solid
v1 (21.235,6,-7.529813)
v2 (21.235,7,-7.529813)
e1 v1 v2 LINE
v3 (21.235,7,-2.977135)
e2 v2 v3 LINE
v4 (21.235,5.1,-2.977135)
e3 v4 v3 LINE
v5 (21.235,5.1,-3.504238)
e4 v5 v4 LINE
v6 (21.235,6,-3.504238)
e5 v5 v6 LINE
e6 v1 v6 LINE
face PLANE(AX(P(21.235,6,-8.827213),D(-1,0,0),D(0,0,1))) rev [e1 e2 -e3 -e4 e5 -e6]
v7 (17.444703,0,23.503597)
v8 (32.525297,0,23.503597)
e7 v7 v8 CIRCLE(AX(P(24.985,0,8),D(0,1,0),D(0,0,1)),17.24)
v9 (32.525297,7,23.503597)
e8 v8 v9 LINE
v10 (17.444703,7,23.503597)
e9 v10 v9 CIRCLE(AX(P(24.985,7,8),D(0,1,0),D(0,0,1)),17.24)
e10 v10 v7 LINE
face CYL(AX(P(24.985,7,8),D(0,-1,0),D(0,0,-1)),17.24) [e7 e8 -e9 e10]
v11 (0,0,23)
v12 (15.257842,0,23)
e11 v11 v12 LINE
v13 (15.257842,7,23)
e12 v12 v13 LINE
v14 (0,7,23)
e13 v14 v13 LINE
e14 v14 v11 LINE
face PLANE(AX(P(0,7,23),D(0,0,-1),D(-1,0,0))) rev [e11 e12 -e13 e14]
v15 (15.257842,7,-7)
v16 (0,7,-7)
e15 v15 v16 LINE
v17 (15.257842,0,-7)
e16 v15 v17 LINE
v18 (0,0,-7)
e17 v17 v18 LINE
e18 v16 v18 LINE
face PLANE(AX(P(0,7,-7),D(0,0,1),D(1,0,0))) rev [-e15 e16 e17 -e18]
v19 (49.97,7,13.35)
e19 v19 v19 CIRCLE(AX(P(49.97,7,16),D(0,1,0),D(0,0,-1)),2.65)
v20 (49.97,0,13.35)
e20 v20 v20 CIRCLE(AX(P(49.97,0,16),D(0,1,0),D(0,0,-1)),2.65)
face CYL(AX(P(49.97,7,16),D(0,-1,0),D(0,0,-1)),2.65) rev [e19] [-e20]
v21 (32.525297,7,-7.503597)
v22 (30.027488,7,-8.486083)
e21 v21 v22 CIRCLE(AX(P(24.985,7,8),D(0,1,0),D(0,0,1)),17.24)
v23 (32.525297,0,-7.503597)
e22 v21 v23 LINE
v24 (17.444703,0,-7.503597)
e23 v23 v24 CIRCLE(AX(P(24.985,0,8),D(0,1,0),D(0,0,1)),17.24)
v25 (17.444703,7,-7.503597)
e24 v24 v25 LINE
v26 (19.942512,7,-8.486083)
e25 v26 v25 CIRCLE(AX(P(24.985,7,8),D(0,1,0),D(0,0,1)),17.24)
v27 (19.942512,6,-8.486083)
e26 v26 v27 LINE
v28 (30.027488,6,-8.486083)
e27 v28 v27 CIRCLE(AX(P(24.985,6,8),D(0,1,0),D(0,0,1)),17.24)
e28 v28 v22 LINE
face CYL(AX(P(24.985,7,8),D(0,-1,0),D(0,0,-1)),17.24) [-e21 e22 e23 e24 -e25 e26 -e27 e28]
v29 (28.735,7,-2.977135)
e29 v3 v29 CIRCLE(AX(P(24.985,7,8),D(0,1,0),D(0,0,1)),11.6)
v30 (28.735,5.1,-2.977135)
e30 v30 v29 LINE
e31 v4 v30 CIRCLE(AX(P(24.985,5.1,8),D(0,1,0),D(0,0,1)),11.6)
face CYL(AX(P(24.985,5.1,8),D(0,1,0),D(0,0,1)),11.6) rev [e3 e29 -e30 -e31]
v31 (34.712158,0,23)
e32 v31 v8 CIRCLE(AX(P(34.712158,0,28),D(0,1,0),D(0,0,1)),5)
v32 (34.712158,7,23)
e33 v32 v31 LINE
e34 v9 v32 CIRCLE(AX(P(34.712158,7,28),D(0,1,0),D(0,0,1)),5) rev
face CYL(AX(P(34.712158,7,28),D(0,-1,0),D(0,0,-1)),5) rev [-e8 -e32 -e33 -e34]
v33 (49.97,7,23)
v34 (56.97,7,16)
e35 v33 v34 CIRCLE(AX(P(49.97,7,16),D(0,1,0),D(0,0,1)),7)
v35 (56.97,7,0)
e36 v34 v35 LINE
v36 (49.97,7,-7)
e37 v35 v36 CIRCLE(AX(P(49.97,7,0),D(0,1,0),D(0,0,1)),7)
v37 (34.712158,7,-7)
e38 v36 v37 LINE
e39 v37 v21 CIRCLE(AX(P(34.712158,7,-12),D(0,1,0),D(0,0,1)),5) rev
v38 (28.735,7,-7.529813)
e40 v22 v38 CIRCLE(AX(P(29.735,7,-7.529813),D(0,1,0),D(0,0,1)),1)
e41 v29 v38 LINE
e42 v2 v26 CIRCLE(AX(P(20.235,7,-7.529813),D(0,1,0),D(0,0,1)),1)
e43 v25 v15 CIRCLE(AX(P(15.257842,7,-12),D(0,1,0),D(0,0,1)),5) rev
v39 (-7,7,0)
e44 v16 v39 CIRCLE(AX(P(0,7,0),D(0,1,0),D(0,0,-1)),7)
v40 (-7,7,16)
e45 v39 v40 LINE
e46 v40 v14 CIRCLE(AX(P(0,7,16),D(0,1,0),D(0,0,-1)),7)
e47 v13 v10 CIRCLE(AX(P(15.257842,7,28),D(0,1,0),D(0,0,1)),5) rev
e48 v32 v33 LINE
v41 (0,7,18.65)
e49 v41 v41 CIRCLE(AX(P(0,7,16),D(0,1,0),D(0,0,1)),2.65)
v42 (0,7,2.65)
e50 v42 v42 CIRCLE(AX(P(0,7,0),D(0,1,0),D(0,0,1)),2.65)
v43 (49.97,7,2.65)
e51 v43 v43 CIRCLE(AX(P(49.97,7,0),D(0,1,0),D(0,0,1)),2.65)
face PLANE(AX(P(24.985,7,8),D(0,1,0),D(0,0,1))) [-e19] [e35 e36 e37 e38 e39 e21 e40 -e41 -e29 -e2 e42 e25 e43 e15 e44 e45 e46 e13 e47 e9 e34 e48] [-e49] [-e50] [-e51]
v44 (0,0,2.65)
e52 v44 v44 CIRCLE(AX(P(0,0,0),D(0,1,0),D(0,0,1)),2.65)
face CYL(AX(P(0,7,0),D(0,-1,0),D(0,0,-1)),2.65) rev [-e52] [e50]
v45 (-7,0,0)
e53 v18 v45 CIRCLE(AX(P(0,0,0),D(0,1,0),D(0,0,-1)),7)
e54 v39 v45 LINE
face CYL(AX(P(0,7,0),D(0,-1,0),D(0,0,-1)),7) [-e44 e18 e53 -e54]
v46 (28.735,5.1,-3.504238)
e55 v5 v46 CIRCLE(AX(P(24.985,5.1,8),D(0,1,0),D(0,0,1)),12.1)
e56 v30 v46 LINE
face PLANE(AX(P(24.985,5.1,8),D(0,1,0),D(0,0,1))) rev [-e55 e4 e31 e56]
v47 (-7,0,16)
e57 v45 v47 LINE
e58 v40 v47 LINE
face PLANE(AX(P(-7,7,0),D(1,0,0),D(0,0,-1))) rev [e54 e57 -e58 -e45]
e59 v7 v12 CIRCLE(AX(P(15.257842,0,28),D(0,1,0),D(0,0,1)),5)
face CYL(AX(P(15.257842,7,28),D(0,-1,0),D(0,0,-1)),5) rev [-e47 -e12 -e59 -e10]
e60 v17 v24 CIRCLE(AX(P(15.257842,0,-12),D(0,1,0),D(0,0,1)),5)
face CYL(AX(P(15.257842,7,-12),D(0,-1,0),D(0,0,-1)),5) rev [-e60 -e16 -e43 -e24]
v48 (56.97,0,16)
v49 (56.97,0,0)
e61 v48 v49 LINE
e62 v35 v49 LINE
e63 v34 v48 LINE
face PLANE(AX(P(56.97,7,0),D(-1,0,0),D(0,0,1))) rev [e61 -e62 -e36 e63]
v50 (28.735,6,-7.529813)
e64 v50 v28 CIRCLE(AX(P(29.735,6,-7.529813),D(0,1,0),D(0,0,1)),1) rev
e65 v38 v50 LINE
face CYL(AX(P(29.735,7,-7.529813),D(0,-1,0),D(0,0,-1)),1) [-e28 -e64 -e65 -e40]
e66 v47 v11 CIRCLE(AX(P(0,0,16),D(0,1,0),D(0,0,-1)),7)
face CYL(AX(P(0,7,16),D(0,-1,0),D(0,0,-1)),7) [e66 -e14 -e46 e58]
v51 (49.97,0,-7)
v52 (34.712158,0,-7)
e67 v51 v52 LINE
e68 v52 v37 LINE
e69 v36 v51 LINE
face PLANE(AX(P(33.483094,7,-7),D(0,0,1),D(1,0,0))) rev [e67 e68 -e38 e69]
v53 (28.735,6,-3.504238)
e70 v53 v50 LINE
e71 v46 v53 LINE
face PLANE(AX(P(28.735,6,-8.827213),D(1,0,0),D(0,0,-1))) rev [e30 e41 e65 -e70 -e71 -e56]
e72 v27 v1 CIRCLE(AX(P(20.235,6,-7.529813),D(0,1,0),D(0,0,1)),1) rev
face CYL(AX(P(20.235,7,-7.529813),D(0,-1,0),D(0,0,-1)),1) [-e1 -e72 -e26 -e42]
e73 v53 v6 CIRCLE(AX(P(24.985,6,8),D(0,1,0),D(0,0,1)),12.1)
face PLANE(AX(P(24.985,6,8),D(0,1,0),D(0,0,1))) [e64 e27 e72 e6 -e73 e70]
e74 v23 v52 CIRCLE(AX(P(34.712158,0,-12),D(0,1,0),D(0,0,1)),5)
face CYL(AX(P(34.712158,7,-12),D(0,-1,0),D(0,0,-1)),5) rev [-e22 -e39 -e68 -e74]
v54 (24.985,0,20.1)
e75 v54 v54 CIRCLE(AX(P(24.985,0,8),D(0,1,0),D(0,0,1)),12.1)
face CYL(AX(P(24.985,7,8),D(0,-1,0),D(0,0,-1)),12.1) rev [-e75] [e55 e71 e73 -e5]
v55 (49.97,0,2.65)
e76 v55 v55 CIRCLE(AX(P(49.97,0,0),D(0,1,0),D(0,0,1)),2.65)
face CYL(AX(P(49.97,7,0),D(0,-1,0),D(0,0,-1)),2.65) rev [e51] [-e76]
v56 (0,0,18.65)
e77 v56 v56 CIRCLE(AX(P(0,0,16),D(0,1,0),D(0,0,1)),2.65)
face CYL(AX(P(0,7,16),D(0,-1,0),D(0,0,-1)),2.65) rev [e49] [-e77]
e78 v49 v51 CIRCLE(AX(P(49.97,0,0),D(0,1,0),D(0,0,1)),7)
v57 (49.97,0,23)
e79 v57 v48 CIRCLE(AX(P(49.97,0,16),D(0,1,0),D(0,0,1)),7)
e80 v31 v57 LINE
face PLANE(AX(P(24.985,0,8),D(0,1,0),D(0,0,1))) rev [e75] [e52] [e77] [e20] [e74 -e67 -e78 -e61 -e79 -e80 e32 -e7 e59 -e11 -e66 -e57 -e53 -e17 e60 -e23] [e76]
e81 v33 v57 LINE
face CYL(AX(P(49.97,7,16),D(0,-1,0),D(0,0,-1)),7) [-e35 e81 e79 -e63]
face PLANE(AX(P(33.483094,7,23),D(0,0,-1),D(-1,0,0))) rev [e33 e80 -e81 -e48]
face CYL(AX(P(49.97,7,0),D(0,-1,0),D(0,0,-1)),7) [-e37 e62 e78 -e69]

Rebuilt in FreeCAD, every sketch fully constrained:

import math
import FreeCAD as App
import Part
import Sketcher

V = App.Vector


def edges_at(feature, points):
    """Names of the edges that pass closest to the given points."""
    edges = feature.Shape.Edges
    near = lambda p: min(range(len(edges)), key=lambda i: edges[i].distToShape(Part.Vertex(*p))[0])
    return sorted({f"Edge{near(p) + 1}" for p in points})

doc = App.newDocument("Part")
body = doc.addObject("PartDesign::Body", "Body")

# Sketch on XZ plane
sketch1 = body.newObject("Sketcher::SketchObject", "Sketch")
sketch1.AttachmentSupport = (doc.getObject("XZ_Plane"), [""])
sketch1.MapMode = "FlatFace"
sketch1.addGeometry([
    Part.LineSegment(V(33.483094, 23, 0), V(49.97, 23, 0)),  # 0
    Part.ArcOfCircle(Part.Circle(V(49.97, 16, 0), V(0, 0, 1), 7), math.radians(0), math.radians(90)),  # 1
    Part.LineSegment(V(56.97, 16, 0), V(56.97, 0, 0)),  # 2
    Part.ArcOfCircle(Part.Circle(V(49.97, 0, 0), V(0, 0, 1), 7), math.radians(-90), math.radians(0)),  # 3
    Part.LineSegment(V(49.97, -7, 0), V(33.483094, -7, 0)),  # 4
    Part.ArcOfCircle(Part.Circle(V(24.985, 8, 0), V(0, 0, 1), 17.24), math.radians(-119.533271), math.radians(-60.466729)),  # 5
    Part.LineSegment(V(16.486906, -7, 0), V(0, -7, 0)),  # 6
    Part.ArcOfCircle(Part.Circle(V(0, 0, 0), V(0, 0, 1), 7), math.radians(-180), math.radians(-90)),  # 7
    Part.LineSegment(V(-7, 0, 0), V(-7, 16, 0)),  # 8
    Part.ArcOfCircle(Part.Circle(V(0, 16, 0), V(0, 0, 1), 7), math.radians(90), math.radians(180)),  # 9
    Part.LineSegment(V(0, 23, 0), V(16.486906, 23, 0)),  # 10
    Part.ArcOfCircle(Part.Circle(V(24.985, 8, 0), V(0, 0, 1), 17.24), math.radians(60.466729), math.radians(119.533271)),  # 11
    Part.Circle(V(0, 16, 0), V(0, 0, 1), 2.65),  # 12
    Part.Circle(V(49.97, 16, 0), V(0, 0, 1), 2.65),  # 13
    Part.Circle(V(0, 0, 0), V(0, 0, 1), 2.65),  # 14
    Part.Circle(V(24.985, 8, 0), V(0, 0, 1), 12.1),  # 15
    Part.Circle(V(49.97, 0, 0), V(0, 0, 1), 2.65),  # 16
], False)
sketch1.addConstraint([
    Sketcher.Constraint("Tangent", 0, 2, 1, 2),
    Sketcher.Constraint("Tangent", 1, 1, 2, 1),
    Sketcher.Constraint("Tangent", 2, 2, 3, 2),
    Sketcher.Constraint("Tangent", 3, 1, 4, 1),
    Sketcher.Constraint("Coincident", 4, 2, 5, 2),
    Sketcher.Constraint("Coincident", 5, 1, 6, 1),
    Sketcher.Constraint("Tangent", 6, 2, 7, 2),
    Sketcher.Constraint("Tangent", 7, 1, 8, 1),
    Sketcher.Constraint("Tangent", 8, 2, 9, 2),
    Sketcher.Constraint("Tangent", 9, 1, 10, 1),
    Sketcher.Constraint("Coincident", 10, 2, 11, 2),
    Sketcher.Constraint("Coincident", 11, 1, 0, 1),
    Sketcher.Constraint("Horizontal", 0),
    Sketcher.Constraint("Vertical", 2),
    Sketcher.Constraint("Horizontal", 4),
    Sketcher.Constraint("Horizontal", 6),
    Sketcher.Constraint("Vertical", 8),
    Sketcher.Constraint("Horizontal", 10),
    Sketcher.Constraint("Coincident", 7, 3, -1, 1),
    Sketcher.Constraint("Coincident", 14, 3, -1, 1),
    Sketcher.Constraint("Coincident", 11, 3, 5, 3),
    Sketcher.Constraint("Coincident", 12, 3, 9, 3),
    Sketcher.Constraint("Coincident", 13, 3, 1, 3),
    Sketcher.Constraint("Coincident", 15, 3, 5, 3),
    Sketcher.Constraint("Coincident", 16, 3, 3, 3),
    Sketcher.Constraint("Equal", 1, 3),
    Sketcher.Constraint("Equal", 3, 7),
    Sketcher.Constraint("Equal", 7, 9),
    Sketcher.Constraint("Equal", 5, 11),
    Sketcher.Constraint("Equal", 12, 13),
    Sketcher.Constraint("Equal", 13, 14),
    Sketcher.Constraint("Equal", 14, 16),
    Sketcher.Constraint("PointOnObject", 3, 3, -1),
    Sketcher.Constraint("Horizontal", 1, 3, 9, 3),
    Sketcher.Constraint("Vertical", 5, 1, 10, 2),
    Sketcher.Constraint("Equal", 4, 6),
    Sketcher.Constraint("Radius", 1, 7.0),
    Sketcher.Constraint("Diameter", 12, 5.3),
    Sketcher.Constraint("Diameter", 15, 24.2),
    Sketcher.Constraint("DistanceY", 2, 2, 2, 1, 16.0),
    Sketcher.Constraint("Radius", 5, 17.24),
    Sketcher.Constraint("DistanceX", -1, 1, 1, 3, 49.97),
])
pad1 = body.newObject("PartDesign::Pad", "Pad")
pad1.Profile = sketch1
pad1.Length = 7
pad1.Reversed = True

# Sketch on XZ plane
sketch2 = body.newObject("Sketcher::SketchObject", "Sketch001")
sketch2.AttachmentSupport = (doc.getObject("XZ_Plane"), [""])
sketch2.MapMode = "FlatFace"
sketch2.AttachmentOffset = App.Placement(V(0, 0, -7), App.Rotation())
sketch2.addGeometry([
    Part.Circle(V(24.985, 8, 0), V(0, 0, 1), 12.1),
    Part.Circle(V(24.985, 8, 0), V(0, 0, 1), 11.6),
], False)
sketch2.addConstraint([
    Sketcher.Constraint("Coincident", 1, 3, 0, 3),
    Sketcher.Constraint("Diameter", 0, 24.2),
    Sketcher.Constraint("Diameter", 1, 23.2),
    Sketcher.Constraint("DistanceY", -1, 1, 0, 3, 8.0),
    Sketcher.Constraint("DistanceX", -1, 1, 0, 3, 24.985),
])
pad2 = body.newObject("PartDesign::Pad", "Pad001")
pad2.Profile = sketch2
pad2.Length = 1.9
doc.recompute()

fillet = body.newObject("PartDesign::Fillet", "Fillet")
fillet.Base = (pad2, edges_at(pad2, [
    (16.487, 3.5, 23),
    (16.487, 3.5, -7),
    (33.483, 3.5, -7),
    (33.483, 3.5, 23),
]))
fillet.Radius = 5

# Sketch on XZ plane
sketch3 = body.newObject("Sketcher::SketchObject", "Sketch002")
sketch3.AttachmentSupport = (doc.getObject("XZ_Plane"), [""])
sketch3.MapMode = "FlatFace"
sketch3.AttachmentOffset = App.Placement(V(0, 0, -7), App.Rotation())
sketch3.addGeometry([
    Part.LineSegment(V(21.235, -8.827213, 0), V(21.235, -2.977135, 0)),
    Part.ArcOfCircle(Part.Circle(V(24.985, 8, 0), V(0, 0, 1), 11.6), math.radians(-108.861151), math.radians(-71.138849)),
    Part.LineSegment(V(28.735, -2.977135, 0), V(28.735, -8.827213, 0)),
    Part.ArcOfCircle(Part.Circle(V(24.985, 8, 0), V(0, 0, 1), 17.24), math.radians(-102.56326), math.radians(-77.43674)),
], False)
sketch3.addConstraint([
    Sketcher.Constraint("Coincident", 0, 2, 1, 1),
    Sketcher.Constraint("Coincident", 1, 2, 2, 1),
    Sketcher.Constraint("Coincident", 2, 2, 3, 2),
    Sketcher.Constraint("Coincident", 3, 1, 0, 1),
    Sketcher.Constraint("Vertical", 0),
    Sketcher.Constraint("Vertical", 2),
    Sketcher.Constraint("Coincident", 3, 3, 1, 3),
    Sketcher.Constraint("Horizontal", 0, 2, 1, 2),
    Sketcher.Constraint("Radius", 1, 11.6),
    Sketcher.Constraint("Radius", 3, 17.24),
    Sketcher.Constraint("DistanceY", -1, 1, 1, 3, 8.0),
    Sketcher.Constraint("DistanceX", 0, 2, 1, 2, 7.5),
    Sketcher.Constraint("DistanceX", -1, 1, 1, 3, 24.985),
])
pocket1 = body.newObject("PartDesign::Pocket", "Pocket")
pocket1.Profile = sketch3
pocket1.Length = 1
pocket1.Reversed = True

# Sketch on XZ plane
sketch4 = body.newObject("Sketcher::SketchObject", "Sketch003")
sketch4.AttachmentSupport = (doc.getObject("XZ_Plane"), [""])
sketch4.MapMode = "FlatFace"
sketch4.AttachmentOffset = App.Placement(V(0, 0, -6), App.Rotation())
sketch4.addGeometry([
    Part.LineSegment(V(28.735, -2.977135, 0), V(28.735, -3.504238, 0)),
    Part.ArcOfCircle(Part.Circle(V(24.985, 8, 0), V(0, 0, 1), 12.1), math.radians(-108.05425), math.radians(-71.94575)),
    Part.LineSegment(V(21.235, -3.504238, 0), V(21.235, -2.977135, 0)),
    Part.ArcOfCircle(Part.Circle(V(24.985, 8, 0), V(0, 0, 1), 11.6), math.radians(-108.861151), math.radians(-71.138849)),
], False)
sketch4.addConstraint([
    Sketcher.Constraint("Coincident", 0, 2, 1, 2),
    Sketcher.Constraint("Coincident", 1, 1, 2, 1),
    Sketcher.Constraint("Coincident", 2, 2, 3, 1),
    Sketcher.Constraint("Coincident", 3, 2, 0, 1),
    Sketcher.Constraint("Vertical", 0),
    Sketcher.Constraint("Vertical", 2),
    Sketcher.Constraint("Coincident", 3, 3, 1, 3),
    Sketcher.Constraint("Horizontal", 0, 2, 1, 1),
    Sketcher.Constraint("Radius", 1, 12.1),
    Sketcher.Constraint("Radius", 3, 11.6),
    Sketcher.Constraint("DistanceY", -1, 1, 1, 3, 8.0),
    Sketcher.Constraint("DistanceX", 1, 1, 0, 2, 7.5),
    Sketcher.Constraint("DistanceX", -1, 1, 1, 3, 24.985),
])
pocket2 = body.newObject("PartDesign::Pocket", "Pocket001")
pocket2.Profile = sketch4
pocket2.Type = "ThroughAll"
pocket2.Reversed = True
doc.recompute()

fillet2 = body.newObject("PartDesign::Fillet", "Fillet001")
fillet2.Base = (pocket2, edges_at(pocket2, [(21.235, 6.5, -8.827), (28.735, 6.5, -8.827)]))
fillet2.Radius = 1

doc.recompute()
